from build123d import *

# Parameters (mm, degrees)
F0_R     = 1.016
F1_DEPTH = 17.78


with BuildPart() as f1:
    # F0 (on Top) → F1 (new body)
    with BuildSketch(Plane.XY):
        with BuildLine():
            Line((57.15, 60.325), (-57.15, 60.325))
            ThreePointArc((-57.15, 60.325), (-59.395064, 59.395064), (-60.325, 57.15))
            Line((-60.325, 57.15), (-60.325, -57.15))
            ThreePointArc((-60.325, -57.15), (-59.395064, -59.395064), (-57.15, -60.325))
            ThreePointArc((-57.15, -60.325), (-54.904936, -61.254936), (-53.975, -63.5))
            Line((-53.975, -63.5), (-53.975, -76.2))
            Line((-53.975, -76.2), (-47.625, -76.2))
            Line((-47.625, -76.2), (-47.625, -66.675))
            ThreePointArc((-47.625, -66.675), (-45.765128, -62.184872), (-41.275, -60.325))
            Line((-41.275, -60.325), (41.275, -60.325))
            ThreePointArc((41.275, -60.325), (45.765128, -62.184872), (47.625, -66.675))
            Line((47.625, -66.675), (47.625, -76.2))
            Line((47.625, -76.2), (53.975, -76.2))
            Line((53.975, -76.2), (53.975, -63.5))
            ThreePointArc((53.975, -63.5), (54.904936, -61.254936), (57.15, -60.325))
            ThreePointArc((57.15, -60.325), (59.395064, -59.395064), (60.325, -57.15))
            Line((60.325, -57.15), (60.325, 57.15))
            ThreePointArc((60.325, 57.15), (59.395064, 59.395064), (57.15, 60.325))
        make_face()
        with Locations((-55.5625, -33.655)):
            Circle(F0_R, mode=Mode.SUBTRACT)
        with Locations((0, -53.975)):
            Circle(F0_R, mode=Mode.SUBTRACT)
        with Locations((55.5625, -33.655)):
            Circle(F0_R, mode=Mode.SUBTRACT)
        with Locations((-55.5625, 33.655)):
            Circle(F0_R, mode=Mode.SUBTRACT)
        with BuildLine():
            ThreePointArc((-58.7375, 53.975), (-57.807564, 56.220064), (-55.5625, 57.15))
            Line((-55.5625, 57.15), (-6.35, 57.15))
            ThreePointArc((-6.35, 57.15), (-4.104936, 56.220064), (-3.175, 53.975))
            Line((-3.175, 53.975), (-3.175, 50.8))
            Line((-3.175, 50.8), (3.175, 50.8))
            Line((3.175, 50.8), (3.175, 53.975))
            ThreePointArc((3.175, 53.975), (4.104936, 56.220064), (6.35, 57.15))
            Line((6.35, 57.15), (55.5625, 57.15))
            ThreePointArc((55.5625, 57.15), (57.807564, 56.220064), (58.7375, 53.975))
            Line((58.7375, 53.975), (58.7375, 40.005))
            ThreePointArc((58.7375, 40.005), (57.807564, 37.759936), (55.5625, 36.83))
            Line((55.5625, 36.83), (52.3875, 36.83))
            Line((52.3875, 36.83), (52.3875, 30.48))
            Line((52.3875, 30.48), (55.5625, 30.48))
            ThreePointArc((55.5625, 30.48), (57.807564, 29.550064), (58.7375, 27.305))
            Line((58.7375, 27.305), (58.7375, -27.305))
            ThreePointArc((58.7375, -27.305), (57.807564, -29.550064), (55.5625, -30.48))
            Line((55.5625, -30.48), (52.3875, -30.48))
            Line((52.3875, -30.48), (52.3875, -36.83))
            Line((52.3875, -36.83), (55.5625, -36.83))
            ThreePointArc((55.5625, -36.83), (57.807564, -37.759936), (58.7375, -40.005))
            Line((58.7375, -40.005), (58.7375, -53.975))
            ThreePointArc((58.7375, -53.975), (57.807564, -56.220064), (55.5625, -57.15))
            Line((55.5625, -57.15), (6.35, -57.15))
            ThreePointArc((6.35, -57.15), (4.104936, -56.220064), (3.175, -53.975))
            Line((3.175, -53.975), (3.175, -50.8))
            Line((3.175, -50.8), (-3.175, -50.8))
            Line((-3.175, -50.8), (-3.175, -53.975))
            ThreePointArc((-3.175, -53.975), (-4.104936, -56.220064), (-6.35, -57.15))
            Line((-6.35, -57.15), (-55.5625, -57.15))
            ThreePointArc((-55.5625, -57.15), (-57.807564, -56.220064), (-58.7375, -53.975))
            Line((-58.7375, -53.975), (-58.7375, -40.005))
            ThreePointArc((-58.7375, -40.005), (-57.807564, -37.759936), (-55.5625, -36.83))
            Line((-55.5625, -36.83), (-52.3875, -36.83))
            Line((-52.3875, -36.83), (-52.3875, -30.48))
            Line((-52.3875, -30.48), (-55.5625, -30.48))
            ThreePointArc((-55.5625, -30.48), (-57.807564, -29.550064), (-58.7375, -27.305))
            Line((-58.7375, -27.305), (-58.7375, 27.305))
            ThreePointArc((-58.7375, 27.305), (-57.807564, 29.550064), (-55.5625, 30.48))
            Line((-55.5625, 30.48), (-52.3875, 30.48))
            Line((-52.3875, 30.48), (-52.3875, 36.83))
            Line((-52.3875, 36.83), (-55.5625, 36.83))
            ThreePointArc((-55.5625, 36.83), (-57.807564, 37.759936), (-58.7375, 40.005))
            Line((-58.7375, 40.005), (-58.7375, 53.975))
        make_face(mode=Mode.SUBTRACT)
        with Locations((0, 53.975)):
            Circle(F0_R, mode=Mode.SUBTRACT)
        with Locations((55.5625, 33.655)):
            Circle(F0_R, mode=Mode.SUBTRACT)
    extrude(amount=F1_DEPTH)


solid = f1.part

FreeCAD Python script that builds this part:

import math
import FreeCAD as App
import Part
import Sketcher

V = App.Vector
Q = App.Units.Quantity

doc = App.newDocument("Part")
body = doc.addObject("PartDesign::Body", "Body")

sketch1 = body.newObject("Sketcher::SketchObject", "Sketch")
sketch1.AttachmentSupport = (doc.getObject("XY_Plane"), [""])
sketch1.MapMode = "FlatFace"
sketch1.addGeometry(Part.LineSegment(V(57.1, 60.3, 0), V(-57.1, 60.3, 0)), False)
sketch1.addGeometry(Part.ArcOfCircle(Part.Circle(V(-57.1, 57.1, 0), V(0, 0, 1), 3.2), math.radians(90), math.radians(180)), False)
sketch1.addGeometry(Part.LineSegment(V(-60.3, 57.1, 0), V(-60.3, -57.1, 0)), False)
sketch1.addGeometry(Part.ArcOfCircle(Part.Circle(V(-57.1, -57.1, 0), V(0, 0, 1), 3.2), math.radians(-180), math.radians(-90)), False)
sketch1.addGeometry(Part.ArcOfCircle(Part.Circle(V(-57.2, -63.5, 0), V(0, 0, 1), 3.2), math.radians(0), math.radians(90)), False)
sketch1.addGeometry(Part.LineSegment(V(-54, -63.5, 0), V(-54, -76.2, 0)), False)
sketch1.addGeometry(Part.LineSegment(V(-54, -76.2, 0), V(-47.6, -76.2, 0)), False)
sketch1.addGeometry(Part.LineSegment(V(-47.6, -76.2, 0), V(-47.6, -66.7, 0)), False)
sketch1.addGeometry(Part.ArcOfCircle(Part.Circle(V(-41.3, -66.7, 0), V(0, 0, 1), 6.4), math.radians(90), math.radians(180)), False)
sketch1.addGeometry(Part.LineSegment(V(-41.3, -60.3, 0), V(41.3, -60.3, 0)), False)
sketch1.addGeometry(Part.ArcOfCircle(Part.Circle(V(41.3, -66.7, 0), V(0, 0, 1), 6.4), math.radians(0), math.radians(90)), False)
sketch1.addGeometry(Part.LineSegment(V(47.6, -66.7, 0), V(47.6, -76.2, 0)), False)
sketch1.addGeometry(Part.LineSegment(V(47.6, -76.2, 0), V(54, -76.2, 0)), False)
sketch1.addGeometry(Part.LineSegment(V(54, -76.2, 0), V(54, -63.5, 0)), False)
sketch1.addGeometry(Part.ArcOfCircle(Part.Circle(V(57.2, -63.5, 0), V(0, 0, 1), 3.2), math.radians(90), math.radians(180)), False)
sketch1.addGeometry(Part.ArcOfCircle(Part.Circle(V(57.1, -57.1, 0), V(0, 0, 1), 3.2), math.radians(-90), math.radians(0)), False)
sketch1.addGeometry(Part.LineSegment(V(60.3, -57.1, 0), V(60.3, 57.1, 0)), False)
sketch1.addGeometry(Part.ArcOfCircle(Part.Circle(V(57.1, 57.1, 0), V(0, 0, 1), 3.2), math.radians(0), math.radians(90)), False)
sketch1.addGeometry(Part.Circle(V(-55.6, -33.7, 0), V(0, 0, 1), 1), False)
sketch1.addGeometry(Part.Circle(V(0, -54, 0), V(0, 0, 1), 1), False)
sketch1.addGeometry(Part.Circle(V(55.6, -33.7, 0), V(0, 0, 1), 1), False)
sketch1.addGeometry(Part.Circle(V(-55.6, 33.7, 0), V(0, 0, 1), 1), False)
sketch1.addGeometry(Part.LineSegment(V(-58.7, 40, 0), V(-58.7, 54, 0)), False)
sketch1.addGeometry(Part.ArcOfCircle(Part.Circle(V(-55.6, 54, 0), V(0, 0, 1), 3.2), math.radians(90), math.radians(180)), False)
sketch1.addGeometry(Part.LineSegment(V(-55.6, 57.1, 0), V(-6.3, 57.1, 0)), False)
sketch1.addGeometry(Part.ArcOfCircle(Part.Circle(V(-6.4, 54, 0), V(0, 0, 1), 3.2), math.radians(0), math.radians(90)), False)
sketch1.addGeometry(Part.LineSegment(V(-3.2, 54, 0), V(-3.2, 50.8, 0)), False)
sketch1.addGeometry(Part.LineSegment(V(-3.2, 50.8, 0), V(3.2, 50.8, 0)), False)
sketch1.addGeometry(Part.LineSegment(V(3.2, 50.8, 0), V(3.2, 54, 0)), False)
sketch1.addGeometry(Part.ArcOfCircle(Part.Circle(V(6.4, 54, 0), V(0, 0, 1), 3.2), math.radians(90), math.radians(180)), False)
sketch1.addGeometry(Part.LineSegment(V(6.3, 57.1, 0), V(55.6, 57.1, 0)), False)
sketch1.addGeometry(Part.ArcOfCircle(Part.Circle(V(55.6, 54, 0), V(0, 0, 1), 3.2), math.radians(0), math.radians(90)), False)
sketch1.addGeometry(Part.LineSegment(V(58.7, 54, 0), V(58.7, 40, 0)), False)
sketch1.addGeometry(Part.ArcOfCircle(Part.Circle(V(55.6, 40, 0), V(0, 0, 1), 3.2), math.radians(-90), math.radians(0)), False)
sketch1.addGeometry(Part.LineSegment(V(55.6, 36.8, 0), V(52.4, 36.8, 0)), False)
sketch1.addGeometry(Part.LineSegment(V(52.4, 36.8, 0), V(52.4, 30.5, 0)), False)
sketch1.addGeometry(Part.LineSegment(V(52.4, 30.5, 0), V(55.6, 30.5, 0)), False)
sketch1.addGeometry(Part.ArcOfCircle(Part.Circle(V(55.6, 27.3, 0), V(0, 0, 1), 3.2), math.radians(0), math.radians(90)), False)
sketch1.addGeometry(Part.LineSegment(V(58.7, 27.3, 0), V(58.7, -27.3, 0)), False)
sketch1.addGeometry(Part.ArcOfCircle(Part.Circle(V(55.6, -27.3, 0), V(0, 0, 1), 3.2), math.radians(-90), math.radians(0)), False)
sketch1.addGeometry(Part.LineSegment(V(55.6, -30.5, 0), V(52.4, -30.5, 0)), False)
sketch1.addGeometry(Part.LineSegment(V(52.4, -30.5, 0), V(52.4, -36.8, 0)), False)
sketch1.addGeometry(Part.LineSegment(V(52.4, -36.8, 0), V(55.6, -36.8, 0)), False)
sketch1.addGeometry(Part.ArcOfCircle(Part.Circle(V(55.6, -40, 0), V(0, 0, 1), 3.2), math.radians(0), math.radians(90)), False)
sketch1.addGeometry(Part.LineSegment(V(58.7, -40, 0), V(58.7, -54, 0)), False)
sketch1.addGeometry(Part.ArcOfCircle(Part.Circle(V(55.6, -54, 0), V(0, 0, 1), 3.2), math.radians(-90), math.radians(0)), False)
sketch1.addGeometry(Part.LineSegment(V(55.6, -57.1, 0), V(6.3, -57.1, 0)), False)
sketch1.addGeometry(Part.ArcOfCircle(Part.Circle(V(6.4, -54, 0), V(0, 0, 1), 3.2), math.radians(-180), math.radians(-90)), False)
sketch1.addGeometry(Part.LineSegment(V(3.2, -54, 0), V(3.2, -50.8, 0)), False)
sketch1.addGeometry(Part.LineSegment(V(3.2, -50.8, 0), V(-3.2, -50.8, 0)), False)
sketch1.addGeometry(Part.LineSegment(V(-3.2, -50.8, 0), V(-3.2, -54, 0)), False)
sketch1.addGeometry(Part.ArcOfCircle(Part.Circle(V(-6.4, -54, 0), V(0, 0, 1), 3.2), math.radians(-90), math.radians(0)), False)
sketch1.addGeometry(Part.LineSegment(V(-6.3, -57.1, 0), V(-55.6, -57.1, 0)), False)
sketch1.addGeometry(Part.ArcOfCircle(Part.Circle(V(-55.6, -54, 0), V(0, 0, 1), 3.2), math.radians(-180), math.radians(-90)), False)
sketch1.addGeometry(Part.LineSegment(V(-58.7, -54, 0), V(-58.7, -40, 0)), False)
sketch1.addGeometry(Part.ArcOfCircle(Part.Circle(V(-55.6, -40, 0), V(0, 0, 1), 3.2), math.radians(90), math.radians(180)), False)
sketch1.addGeometry(Part.LineSegment(V(-55.6, -36.8, 0), V(-52.4, -36.8, 0)), False)
sketch1.addGeometry(Part.LineSegment(V(-52.4, -36.8, 0), V(-52.4, -30.5, 0)), False)
sketch1.addGeometry(Part.LineSegment(V(-52.4, -30.5, 0), V(-55.6, -30.5, 0)), False)
sketch1.addGeometry(Part.ArcOfCircle(Part.Circle(V(-55.6, -27.3, 0), V(0, 0, 1), 3.2), math.radians(-180), math.radians(-90)), False)
sketch1.addGeometry(Part.LineSegment(V(-58.7, -27.3, 0), V(-58.7, 27.3, 0)), False)
sketch1.addGeometry(Part.ArcOfCircle(Part.Circle(V(-55.6, 27.3, 0), V(0, 0, 1), 3.2), math.radians(90), math.radians(180)), False)
sketch1.addGeometry(Part.LineSegment(V(-55.6, 30.5, 0), V(-52.4, 30.5, 0)), False)
sketch1.addGeometry(Part.LineSegment(V(-52.4, 30.5, 0), V(-52.4, 36.8, 0)), False)
sketch1.addGeometry(Part.LineSegment(V(-52.4, 36.8, 0), V(-55.6, 36.8, 0)), False)
sketch1.addGeometry(Part.ArcOfCircle(Part.Circle(V(-55.6, 40, 0), V(0, 0, 1), 3.2), math.radians(-180), math.radians(-90)), False)
sketch1.addGeometry(Part.Circle(V(0, 54, 0), V(0, 0, 1), 1), False)
sketch1.addGeometry(Part.Circle(V(55.6, 33.7, 0), V(0, 0, 1), 1), False)
sketch1.addConstraint(Sketcher.Constraint("Tangent", 0, 2, 1, 1))
sketch1.addConstraint(Sketcher.Constraint("Tangent", 1, 2, 2, 1))
sketch1.addConstraint(Sketcher.Constraint("Tangent", 2, 2, 3, 1))
sketch1.addConstraint(Sketcher.Constraint("Tangent", 3, 2, 4, 2))
sketch1.addConstraint(Sketcher.Constraint("Tangent", 4, 1, 5, 1))
sketch1.addConstraint(Sketcher.Constraint("Coincident", 5, 2, 6, 1))
sketch1.addConstraint(Sketcher.Constraint("Coincident", 6, 2, 7, 1))
sketch1.addConstraint(Sketcher.Constraint("Tangent", 7, 2, 8, 2))
sketch1.addConstraint(Sketcher.Constraint("Tangent", 8, 1, 9, 1))
sketch1.addConstraint(Sketcher.Constraint("Tangent", 9, 2, 10, 2))
sketch1.addConstraint(Sketcher.Constraint("Tangent", 10, 1, 11, 1))
sketch1.addConstraint(Sketcher.Constraint("Coincident", 11, 2, 12, 1))
sketch1.addConstraint(Sketcher.Constraint("Coincident", 12, 2, 13, 1))
sketch1.addConstraint(Sketcher.Constraint("Tangent", 13, 2, 14, 2))
sketch1.addConstraint(Sketcher.Constraint("Tangent", 14, 1, 15, 1))
sketch1.addConstraint(Sketcher.Constraint("Tangent", 15, 2, 16, 1))
sketch1.addConstraint(Sketcher.Constraint("Tangent", 16, 2, 17, 1))
sketch1.addConstraint(Sketcher.Constraint("Tangent", 17, 2, 0, 1))
sketch1.addConstraint(Sketcher.Constraint("Tangent", 22, 2, 23, 2))
sketch1.addConstraint(Sketcher.Constraint("Tangent", 23, 1, 24, 1))
sketch1.addConstraint(Sketcher.Constraint("Tangent", 24, 2, 25, 2))
sketch1.addConstraint(Sketcher.Constraint("Tangent", 25, 1, 26, 1))
sketch1.addConstraint(Sketcher.Constraint("Coincident", 26, 2, 27, 1))
sketch1.addConstraint(Sketcher.Constraint("Coincident", 27, 2, 28, 1))
sketch1.addConstraint(Sketcher.Constraint("Tangent", 28, 2, 29, 2))
sketch1.addConstraint(Sketcher.Constraint("Tangent", 29, 1, 30, 1))
sketch1.addConstraint(Sketcher.Constraint("Tangent", 30, 2, 31, 2))
sketch1.addConstraint(Sketcher.Constraint("Tangent", 31, 1, 32, 1))
sketch1.addConstraint(Sketcher.Constraint("Tangent", 32, 2, 33, 2))
sketch1.addConstraint(Sketcher.Constraint("Tangent", 33, 1, 34, 1))
sketch1.addConstraint(Sketcher.Constraint("Coincident", 34, 2, 35, 1))
sketch1.addConstraint(Sketcher.Constraint("Coincident", 35, 2, 36, 1))
sketch1.addConstraint(Sketcher.Constraint("Tangent", 36, 2, 37, 2))
sketch1.addConstraint(Sketcher.Constraint("Tangent", 37, 1, 38, 1))
sketch1.addConstraint(Sketcher.Constraint("Tangent", 38, 2, 39, 2))
sketch1.addConstraint(Sketcher.Constraint("Tangent", 39, 1, 40, 1))
sketch1.addConstraint(Sketcher.Constraint("Coincident", 40, 2, 41, 1))
sketch1.addConstraint(Sketcher.Constraint("Coincident", 41, 2, 42, 1))
sketch1.addConstraint(Sketcher.Constraint("Tangent", 42, 2, 43, 2))
sketch1.addConstraint(Sketcher.Constraint("Tangent", 43, 1, 44, 1))
sketch1.addConstraint(Sketcher.Constraint("Tangent", 44, 2, 45, 2))
sketch1.addConstraint(Sketcher.Constraint("Tangent", 45, 1, 46, 1))
sketch1.addConstraint(Sketcher.Constraint("Tangent", 46, 2, 47, 2))
sketch1.addConstraint(Sketcher.Constraint("Tangent", 47, 1, 48, 1))
sketch1.addConstraint(Sketcher.Constraint("Coincident", 48, 2, 49, 1))
sketch1.addConstraint(Sketcher.Constraint("Coincident", 49, 2, 50, 1))
sketch1.addConstraint(Sketcher.Constraint("Tangent", 50, 2, 51, 2))
sketch1.addConstraint(Sketcher.Constraint("Tangent", 51, 1, 52, 1))
sketch1.addConstraint(Sketcher.Constraint("Tangent", 52, 2, 53, 2))
sketch1.addConstraint(Sketcher.Constraint("Tangent", 53, 1, 54, 1))
sketch1.addConstraint(Sketcher.Constraint("Tangent", 54, 2, 55, 2))
sketch1.addConstraint(Sketcher.Constraint("Tangent", 55, 1, 56, 1))
sketch1.addConstraint(Sketcher.Constraint("Coincident", 56, 2, 57, 1))
sketch1.addConstraint(Sketcher.Constraint("Coincident", 57, 2, 58, 1))
sketch1.addConstraint(Sketcher.Constraint("Tangent", 58, 2, 59, 2))
sketch1.addConstraint(Sketcher.Constraint("Tangent", 59, 1, 60, 1))
sketch1.addConstraint(Sketcher.Constraint("Tangent", 60, 2, 61, 2))
sketch1.addConstraint(Sketcher.Constraint("Tangent", 61, 1, 62, 1))
sketch1.addConstraint(Sketcher.Constraint("Coincident", 62, 2, 63, 1))
sketch1.addConstraint(Sketcher.Constraint("Coincident", 63, 2, 64, 1))
sketch1.addConstraint(Sketcher.Constraint("Tangent", 64, 2, 65, 2))
sketch1.addConstraint(Sketcher.Constraint("Tangent", 65, 1, 22, 1))
sketch1.addConstraint(Sketcher.Constraint("Horizontal", 0))
sketch1.addConstraint(Sketcher.Constraint("Vertical", 2))
sketch1.addConstraint(Sketcher.Constraint("Vertical", 5))
sketch1.addConstraint(Sketcher.Constraint("Horizontal", 6))
sketch1.addConstraint(Sketcher.Constraint("Vertical", 7))
sketch1.addConstraint(Sketcher.Constraint("Horizontal", 9))
sketch1.addConstraint(Sketcher.Constraint("Vertical", 11))
sketch1.addConstraint(Sketcher.Constraint("Horizontal", 12))
sketch1.addConstraint(Sketcher.Constraint("Vertical", 13))
sketch1.addConstraint(Sketcher.Constraint("Vertical", 16))
sketch1.addConstraint(Sketcher.Constraint("Vertical", 22))
sketch1.addConstraint(Sketcher.Constraint("Horizontal", 24))
sketch1.addConstraint(Sketcher.Constraint("Vertical", 26))
sketch1.addConstraint(Sketcher.Constraint("Horizontal", 27))
sketch1.addConstraint(Sketcher.Constraint("Vertical", 28))
sketch1.addConstraint(Sketcher.Constraint("Horizontal", 30))
sketch1.addConstraint(Sketcher.Constraint("Vertical", 32))
sketch1.addConstraint(Sketcher.Constraint("Horizontal", 34))
sketch1.addConstraint(Sketcher.Constraint("Vertical", 35))
sketch1.addConstraint(Sketcher.Constraint("Horizontal", 36))
sketch1.addConstraint(Sketcher.Constraint("Vertical", 38))
sketch1.addConstraint(Sketcher.Constraint("Horizontal", 40))
sketch1.addConstraint(Sketcher.Constraint("Vertical", 41))
sketch1.addConstraint(Sketcher.Constraint("Horizontal", 42))
sketch1.addConstraint(Sketcher.Constraint("Vertical", 44))
sketch1.addConstraint(Sketcher.Constraint("Horizontal", 46))
sketch1.addConstraint(Sketcher.Constraint("Vertical", 48))
sketch1.addConstraint(Sketcher.Constraint("Horizontal", 49))
sketch1.addConstraint(Sketcher.Constraint("Vertical", 50))
sketch1.addConstraint(Sketcher.Constraint("Horizontal", 52))
sketch1.addConstraint(Sketcher.Constraint("Vertical", 54))
sketch1.addConstraint(Sketcher.Constraint("Horizontal", 56))
sketch1.addConstraint(Sketcher.Constraint("Vertical", 57))
sketch1.addConstraint(Sketcher.Constraint("Horizontal", 58))
sketch1.addConstraint(Sketcher.Constraint("Vertical", 60))
sketch1.addConstraint(Sketcher.Constraint("Horizontal", 62))
sketch1.addConstraint(Sketcher.Constraint("Vertical", 63))
sketch1.addConstraint(Sketcher.Constraint("Horizontal", 64))
sketch1.addConstraint(Sketcher.Constraint("Equal", 1, 3))
sketch1.addConstraint(Sketcher.Constraint("Equal", 3, 4))
sketch1.addConstraint(Sketcher.Constraint("Equal", 8, 10))
sketch1.addConstraint(Sketcher.Constraint("Equal", 4, 14))
sketch1.addConstraint(Sketcher.Constraint("Equal", 14, 15))
sketch1.addConstraint(Sketcher.Constraint("Equal", 15, 17))
sketch1.addConstraint(Sketcher.Constraint("Equal", 18, 19))
sketch1.addConstraint(Sketcher.Constraint("Equal", 19, 20))
sketch1.addConstraint(Sketcher.Constraint("Equal", 20, 21))
sketch1.addConstraint(Sketcher.Constraint("Equal", 17, 23))
sketch1.addConstraint(Sketcher.Constraint("Equal", 23, 25))
sketch1.addConstraint(Sketcher.Constraint("Equal", 25, 29))
sketch1.addConstraint(Sketcher.Constraint("Equal", 29, 31))
sketch1.addConstraint(Sketcher.Constraint("Equal", 31, 33))
sketch1.addConstraint(Sketcher.Constraint("Equal", 33, 37))
sketch1.addConstraint(Sketcher.Constraint("Equal", 37, 39))
sketch1.addConstraint(Sketcher.Constraint("Equal", 39, 43))
sketch1.addConstraint(Sketcher.Constraint("Equal", 43, 45))
sketch1.addConstraint(Sketcher.Constraint("Equal", 45, 47))
sketch1.addConstraint(Sketcher.Constraint("Equal", 47, 51))
sketch1.addConstraint(Sketcher.Constraint("Equal", 51, 53))
sketch1.addConstraint(Sketcher.Constraint("Equal", 53, 55))
sketch1.addConstraint(Sketcher.Constraint("Equal", 55, 59))
sketch1.addConstraint(Sketcher.Constraint("Equal", 59, 61))
sketch1.addConstraint(Sketcher.Constraint("Equal", 61, 65))
sketch1.addConstraint(Sketcher.Constraint("Equal", 21, 66))
sketch1.addConstraint(Sketcher.Constraint("Equal", 66, 67))
sketch1.addConstraint(Sketcher.Constraint("Symmetric", 1, 3, 15, 3, -1, 1))
sketch1.addConstraint(Sketcher.Constraint("Symmetric", 20, 3, 21, 3, -1, 1))
sketch1.addConstraint(Sketcher.Constraint("Symmetric", 23, 3, 45, 3, -1, 1))
sketch1.addConstraint(Sketcher.Constraint("Symmetric", 29, 3, 51, 3, -1, 1))
sketch1.addConstraint(Sketcher.Constraint("Symmetric", 33, 3, 55, 3, -1, 1))
sketch1.addConstraint(Sketcher.Constraint("Symmetric", 37, 3, 59, 3, -1, 1))
sketch1.addConstraint(Sketcher.Constraint("Symmetric", 19, 3, 66, 3, -1, 1))
sketch1.addConstraint(Sketcher.Constraint("Symmetric", 18, 3, 67, 3, -1, 1))
sketch1.addConstraint(Sketcher.Constraint("Symmetric", 3, 2, 17, 2, -1, 1))
sketch1.addConstraint(Sketcher.Constraint("Symmetric", 26, 2, 48, 2, -1, 1))
sketch1.addConstraint(Sketcher.Constraint("Symmetric", 40, 2, 62, 2, -1, 1))
sketch1.addConstraint(Sketcher.Constraint("Symmetric", 18, 3, 20, 3, -2))
sketch1.addConstraint(Sketcher.Constraint("Symmetric", 25, 3, 29, 3, -2))
sketch1.addConstraint(Sketcher.Constraint("Symmetric", 43, 3, 55, 3, -2))
sketch1.addConstraint(Sketcher.Constraint("Symmetric", 6, 2, 11, 2, -2))
sketch1.addConstraint(Sketcher.Constraint("Symmetric", 40, 2, 57, 2, -2))
sketch1.addConstraint(Sketcher.Constraint("Symmetric", 34, 2, 63, 2, -2))
sketch1.addConstraint(Sketcher.Constraint("PointOnObject", 19, 3, -2))
sketch1.addConstraint(Sketcher.Constraint("Horizontal", 19, 3, 45, 3))
sketch1.addConstraint(Sketcher.Constraint("Horizontal", 3, 2, 8, 1))
sketch1.addConstraint(Sketcher.Constraint("Horizontal", 16, 2, 23, 1))
sketch1.addConstraint(Sketcher.Constraint("Vertical", 14, 3, 15, 3))
sketch1.addConstraint(Sketcher.Constraint("Vertical", 21, 3, 23, 3))
sketch1.addConstraint(Sketcher.Constraint("Vertical", 33, 3, 37, 3))
sketch1.addConstraint(Sketcher.Constraint("Equal", 12, 27))
sketch1.addConstraint(Sketcher.Constraint("Equal", 0, 2))
sketch1.addConstraint(Sketcher.Constraint("Equal", 64, 26))
sketch1.addConstraint(Sketcher.Constraint("Equal", 49, 35))
sketch1.addConstraint(Sketcher.Constraint("Diameter", 18, Q("0.08 in")))
sketch1.addConstraint(Sketcher.Constraint("Radius", 8, Q("0.25 in")))
sketch1.addConstraint(Sketcher.Constraint("DistanceX", 0, 2, 0, 1, Q("4.5 in")))
sketch1.addConstraint(Sketcher.Constraint("DistanceY", 5, 2, 5, 1, Q("0.5 in")))
sketch1.addConstraint(Sketcher.Constraint("DistanceY", 5, 2, -1, 1, Q("3 in")))
sketch1.addConstraint(Sketcher.Constraint("DistanceY", -1, 1, 26, 2, Q("2 in")))
sketch1.addConstraint(Sketcher.Constraint("DistanceX", 6, 1, 6, 2, Q("0.25 in")))
sketch1.addConstraint(Sketcher.Constraint("DistanceY", 22, 1, 22, 2, Q("0.55 in")))
sketch1.addConstraint(Sketcher.Constraint("DistanceX", 24, 1, 24, 2, Q("1.9375 in")))
sketch1.addConstraint(Sketcher.Constraint("DistanceY", 18, 3, -1, 1, Q("1.325 in")))
pad1 = body.newObject("PartDesign::Pad", "Pad")
pad1.Profile = sketch1
pad1.Length = Q("0.7 in")

doc.recompute()
